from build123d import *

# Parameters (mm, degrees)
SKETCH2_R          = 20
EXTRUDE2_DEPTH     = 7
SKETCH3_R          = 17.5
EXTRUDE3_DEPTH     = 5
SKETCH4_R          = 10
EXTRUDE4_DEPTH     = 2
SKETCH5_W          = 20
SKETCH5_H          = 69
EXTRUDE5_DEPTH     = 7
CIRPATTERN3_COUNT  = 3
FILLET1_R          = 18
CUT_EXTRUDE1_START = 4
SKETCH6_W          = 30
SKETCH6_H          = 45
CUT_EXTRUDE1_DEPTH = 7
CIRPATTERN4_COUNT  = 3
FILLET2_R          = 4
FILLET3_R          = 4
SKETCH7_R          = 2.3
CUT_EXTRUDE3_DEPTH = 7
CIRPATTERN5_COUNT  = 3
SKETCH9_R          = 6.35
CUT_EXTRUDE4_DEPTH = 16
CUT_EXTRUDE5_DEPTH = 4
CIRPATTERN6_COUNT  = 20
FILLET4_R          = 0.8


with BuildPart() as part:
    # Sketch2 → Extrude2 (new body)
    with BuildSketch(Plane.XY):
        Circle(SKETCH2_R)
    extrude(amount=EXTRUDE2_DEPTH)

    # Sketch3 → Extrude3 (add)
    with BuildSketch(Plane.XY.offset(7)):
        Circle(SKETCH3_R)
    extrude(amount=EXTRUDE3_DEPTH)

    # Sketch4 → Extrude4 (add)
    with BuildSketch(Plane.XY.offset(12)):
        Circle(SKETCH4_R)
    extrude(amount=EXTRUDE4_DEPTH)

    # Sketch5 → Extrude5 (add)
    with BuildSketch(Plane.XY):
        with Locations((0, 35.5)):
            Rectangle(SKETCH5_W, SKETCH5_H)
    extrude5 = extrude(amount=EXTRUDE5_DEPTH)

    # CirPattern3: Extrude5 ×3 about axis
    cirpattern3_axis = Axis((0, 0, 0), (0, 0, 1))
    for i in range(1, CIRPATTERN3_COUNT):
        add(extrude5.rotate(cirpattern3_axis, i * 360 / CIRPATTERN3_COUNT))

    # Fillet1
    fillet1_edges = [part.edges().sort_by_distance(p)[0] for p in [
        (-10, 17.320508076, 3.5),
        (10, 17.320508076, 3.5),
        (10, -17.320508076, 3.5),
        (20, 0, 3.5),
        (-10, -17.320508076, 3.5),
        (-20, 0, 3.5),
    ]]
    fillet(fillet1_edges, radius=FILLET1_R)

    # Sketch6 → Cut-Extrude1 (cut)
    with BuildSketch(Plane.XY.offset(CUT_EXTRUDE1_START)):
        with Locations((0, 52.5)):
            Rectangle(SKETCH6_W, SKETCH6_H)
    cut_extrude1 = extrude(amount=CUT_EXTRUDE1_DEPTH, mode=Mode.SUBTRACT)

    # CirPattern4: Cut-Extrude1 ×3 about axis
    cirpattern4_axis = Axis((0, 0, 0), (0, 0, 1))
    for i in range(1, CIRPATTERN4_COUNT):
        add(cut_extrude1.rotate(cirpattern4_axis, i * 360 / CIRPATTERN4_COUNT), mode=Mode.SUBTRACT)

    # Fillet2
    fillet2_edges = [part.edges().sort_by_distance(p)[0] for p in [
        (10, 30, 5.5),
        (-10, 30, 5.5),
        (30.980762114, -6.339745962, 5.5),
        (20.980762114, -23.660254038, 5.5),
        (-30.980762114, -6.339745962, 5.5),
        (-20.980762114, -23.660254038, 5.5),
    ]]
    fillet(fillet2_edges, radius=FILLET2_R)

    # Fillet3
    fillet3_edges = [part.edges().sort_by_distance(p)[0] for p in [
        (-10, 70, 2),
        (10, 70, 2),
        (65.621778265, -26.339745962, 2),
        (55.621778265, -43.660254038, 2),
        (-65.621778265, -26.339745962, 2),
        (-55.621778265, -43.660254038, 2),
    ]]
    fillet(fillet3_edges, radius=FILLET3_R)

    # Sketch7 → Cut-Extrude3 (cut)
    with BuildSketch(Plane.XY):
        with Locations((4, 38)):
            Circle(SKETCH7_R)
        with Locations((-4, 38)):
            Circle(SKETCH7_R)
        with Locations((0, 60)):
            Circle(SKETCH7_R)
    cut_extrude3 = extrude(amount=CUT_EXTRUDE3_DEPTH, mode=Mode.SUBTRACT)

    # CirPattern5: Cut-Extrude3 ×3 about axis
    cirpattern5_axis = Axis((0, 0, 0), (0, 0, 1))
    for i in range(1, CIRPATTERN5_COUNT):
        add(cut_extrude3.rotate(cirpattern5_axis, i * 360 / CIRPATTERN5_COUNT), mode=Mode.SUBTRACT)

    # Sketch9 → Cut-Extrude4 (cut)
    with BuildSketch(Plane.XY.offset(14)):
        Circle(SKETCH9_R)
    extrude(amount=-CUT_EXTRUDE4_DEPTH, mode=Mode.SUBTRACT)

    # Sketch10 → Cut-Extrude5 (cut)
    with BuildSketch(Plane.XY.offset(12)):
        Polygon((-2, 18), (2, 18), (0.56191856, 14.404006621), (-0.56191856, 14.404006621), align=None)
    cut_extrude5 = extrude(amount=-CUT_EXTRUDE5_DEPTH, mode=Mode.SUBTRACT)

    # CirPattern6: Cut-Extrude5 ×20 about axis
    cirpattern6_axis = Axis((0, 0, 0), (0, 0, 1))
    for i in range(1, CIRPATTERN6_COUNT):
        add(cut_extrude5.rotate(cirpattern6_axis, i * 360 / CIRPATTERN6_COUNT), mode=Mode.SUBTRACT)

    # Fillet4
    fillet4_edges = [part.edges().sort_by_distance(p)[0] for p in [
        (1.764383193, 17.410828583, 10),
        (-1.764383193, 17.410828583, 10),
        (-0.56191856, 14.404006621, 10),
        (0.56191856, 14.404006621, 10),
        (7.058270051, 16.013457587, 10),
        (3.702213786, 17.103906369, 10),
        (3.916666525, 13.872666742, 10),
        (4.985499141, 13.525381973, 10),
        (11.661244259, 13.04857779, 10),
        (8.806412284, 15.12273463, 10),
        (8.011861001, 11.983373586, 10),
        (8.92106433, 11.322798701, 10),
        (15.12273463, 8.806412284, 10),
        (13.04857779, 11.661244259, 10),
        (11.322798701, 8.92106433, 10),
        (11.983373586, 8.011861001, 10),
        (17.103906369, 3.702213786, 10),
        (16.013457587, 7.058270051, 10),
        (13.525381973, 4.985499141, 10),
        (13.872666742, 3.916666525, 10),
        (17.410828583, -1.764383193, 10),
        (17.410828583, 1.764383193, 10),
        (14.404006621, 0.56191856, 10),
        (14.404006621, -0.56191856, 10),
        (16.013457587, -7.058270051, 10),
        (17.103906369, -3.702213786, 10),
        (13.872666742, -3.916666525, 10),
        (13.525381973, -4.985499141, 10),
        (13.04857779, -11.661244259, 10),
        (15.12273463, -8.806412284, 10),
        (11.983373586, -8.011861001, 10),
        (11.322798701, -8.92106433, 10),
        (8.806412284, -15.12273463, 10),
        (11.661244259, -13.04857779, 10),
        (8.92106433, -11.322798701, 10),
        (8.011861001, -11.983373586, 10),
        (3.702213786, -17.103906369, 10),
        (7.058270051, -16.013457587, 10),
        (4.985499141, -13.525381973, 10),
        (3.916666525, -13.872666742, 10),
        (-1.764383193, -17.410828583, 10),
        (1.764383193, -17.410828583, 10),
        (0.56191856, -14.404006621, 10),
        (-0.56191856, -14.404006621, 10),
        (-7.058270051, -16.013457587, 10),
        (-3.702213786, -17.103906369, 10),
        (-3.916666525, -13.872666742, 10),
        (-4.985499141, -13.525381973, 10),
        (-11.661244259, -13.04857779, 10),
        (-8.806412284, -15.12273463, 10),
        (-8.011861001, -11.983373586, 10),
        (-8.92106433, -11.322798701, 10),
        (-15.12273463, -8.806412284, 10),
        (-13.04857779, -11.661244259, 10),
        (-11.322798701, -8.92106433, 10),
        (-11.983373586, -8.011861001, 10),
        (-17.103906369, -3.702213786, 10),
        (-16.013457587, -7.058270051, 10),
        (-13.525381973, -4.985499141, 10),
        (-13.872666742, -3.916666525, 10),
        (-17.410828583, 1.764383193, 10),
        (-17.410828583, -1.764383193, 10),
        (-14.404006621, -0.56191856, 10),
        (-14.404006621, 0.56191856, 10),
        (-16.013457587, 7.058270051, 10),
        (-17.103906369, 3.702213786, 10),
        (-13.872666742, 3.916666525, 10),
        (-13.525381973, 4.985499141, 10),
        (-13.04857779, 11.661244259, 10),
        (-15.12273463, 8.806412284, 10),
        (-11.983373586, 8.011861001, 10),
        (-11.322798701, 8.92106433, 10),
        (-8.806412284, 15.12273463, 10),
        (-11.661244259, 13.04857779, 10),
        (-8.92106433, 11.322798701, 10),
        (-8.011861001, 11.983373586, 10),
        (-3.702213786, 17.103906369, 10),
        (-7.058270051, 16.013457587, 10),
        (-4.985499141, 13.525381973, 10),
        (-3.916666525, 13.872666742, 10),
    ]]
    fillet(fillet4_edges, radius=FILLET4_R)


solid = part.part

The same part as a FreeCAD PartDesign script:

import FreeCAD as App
import Part
import Sketcher
Q = App.Units.Quantity


def edges_at(feature, points):
    """Names of the edges that pass closest to the given points."""
    edges = feature.Shape.Edges
    near = lambda p: min(range(len(edges)), key=lambda i: edges[i].distToShape(Part.Vertex(*p))[0])
    return sorted({f"Edge{near(p) + 1}" for p in points})

doc = App.newDocument("Part")
body = doc.addObject("PartDesign::Body", "Body")

sketch1 = body.newObject("Sketcher::SketchObject", "Sketch")
sketch1.AttachmentSupport = (doc.getObject("XY_Plane"), [""])
sketch1.MapMode = "FlatFace"
sketch1.addGeometry(Part.Circle(App.Vector(0, 0, 0), App.Vector(0, 0, 1), 20), False)
sketch1.addConstraint(Sketcher.Constraint("Coincident", 0, 3, -1, 1))
sketch1.addConstraint(Sketcher.Constraint("Diameter", 0, Q("40 mm")))
pad1 = body.newObject("PartDesign::Pad", "Pad")
pad1.Profile = sketch1
pad1.Length = 7

sketch2 = body.newObject("Sketcher::SketchObject", "Sketch001")
sketch2.AttachmentSupport = (doc.getObject("XY_Plane"), [""])
sketch2.MapMode = "FlatFace"
sketch2.AttachmentOffset = App.Placement(App.Vector(0, 0, 7), App.Rotation())
sketch2.addGeometry(Part.Circle(App.Vector(0, 0, 0), App.Vector(0, 0, 1), 18), False)
sketch2.addConstraint(Sketcher.Constraint("Coincident", 0, 3, -1, 1))
sketch2.addConstraint(Sketcher.Constraint("Diameter", 0, Q("35 mm")))
pad2 = body.newObject("PartDesign::Pad", "Pad001")
pad2.Profile = sketch2
pad2.Length = 5

sketch3 = body.newObject("Sketcher::SketchObject", "Sketch002")
sketch3.AttachmentSupport = (doc.getObject("XY_Plane"), [""])
sketch3.MapMode = "FlatFace"
sketch3.AttachmentOffset = App.Placement(App.Vector(0, 0, 12), App.Rotation())
sketch3.addGeometry(Part.Circle(App.Vector(0, 0, 0), App.Vector(0, 0, 1), 10), False)
sketch3.addConstraint(Sketcher.Constraint("Coincident", 0, 3, -1, 1))
sketch3.addConstraint(Sketcher.Constraint("Diameter", 0, Q("20 mm")))
pad3 = body.newObject("PartDesign::Pad", "Pad002")
pad3.Profile = sketch3
pad3.Length = 2

sketch4 = body.newObject("Sketcher::SketchObject", "Sketch003")
sketch4.AttachmentSupport = (doc.getObject("XY_Plane"), [""])
sketch4.MapMode = "FlatFace"
sketch4.addGeometry(Part.LineSegment(App.Vector(-10, 70, 0), App.Vector(-10, 1, 0)), False)
sketch4.addGeometry(Part.LineSegment(App.Vector(-10, 1, 0), App.Vector(10, 1, 0)), False)
sketch4.addGeometry(Part.LineSegment(App.Vector(10, 1, 0), App.Vector(10, 70, 0)), False)
sketch4.addGeometry(Part.LineSegment(App.Vector(10, 70, 0), App.Vector(-10, 70, 0)), False)
sketch4.addConstraint(Sketcher.Constraint("Coincident", 0, 2, 1, 1))
sketch4.addConstraint(Sketcher.Constraint("Coincident", 1, 2, 2, 1))
sketch4.addConstraint(Sketcher.Constraint("Coincident", 2, 2, 3, 1))
sketch4.addConstraint(Sketcher.Constraint("Coincident", 3, 2, 0, 1))
sketch4.addConstraint(Sketcher.Constraint("Vertical", 0))
sketch4.addConstraint(Sketcher.Constraint("Horizontal", 1))
sketch4.addConstraint(Sketcher.Constraint("Vertical", 2))
sketch4.addConstraint(Sketcher.Constraint("Horizontal", 3))
sketch4.addConstraint(Sketcher.Constraint("DistanceX", 1, 1, 1, 2, Q("20 mm")))
sketch4.addConstraint(Sketcher.Constraint("DistanceY", 0, 2, 0, 1, Q("69 mm")))
sketch4.addConstraint(Sketcher.Constraint("DistanceX", 0, 2, -1, 1, Q("10 mm")))
sketch4.addConstraint(Sketcher.Constraint("DistanceY", -1, 1, 0, 2, Q("1 mm")))
pad4 = body.newObject("PartDesign::Pad", "Pad003")
pad4.Profile = sketch4
pad4.Length = 7
doc.recompute()

polarpattern = body.newObject("PartDesign::PolarPattern", "PolarPattern")
polarpattern.Originals = [pad4]
polarpattern.Axis = (doc.getObject("Z_Axis"), [""])
polarpattern.Angle = 360
polarpattern.Occurrences = 3
body.Tip = polarpattern
doc.recompute()

fillet = body.newObject("PartDesign::Fillet", "Fillet")
fillet.Base = (polarpattern, edges_at(polarpattern, [
    (-10, 17.321, 3.5),
    (10, 17.321, 3.5),
    (10, -17.321, 3.5),
    (20, 0, 3.5),
    (-10, -17.321, 3.5),
    (-20, 0, 3.5),
]))
fillet.Radius = 18

sketch5 = body.newObject("Sketcher::SketchObject", "Sketch004")
sketch5.AttachmentSupport = (doc.getObject("XY_Plane"), [""])
sketch5.MapMode = "FlatFace"
sketch5.AttachmentOffset = App.Placement(App.Vector(0, 0, 4), App.Rotation())
sketch5.addGeometry(Part.LineSegment(App.Vector(-15, 75, 0), App.Vector(-15, 30, 0)), False)
sketch5.addGeometry(Part.LineSegment(App.Vector(-15, 30, 0), App.Vector(15, 30, 0)), False)
sketch5.addGeometry(Part.LineSegment(App.Vector(15, 30, 0), App.Vector(15, 75, 0)), False)
sketch5.addGeometry(Part.LineSegment(App.Vector(15, 75, 0), App.Vector(-15, 75, 0)), False)
sketch5.addConstraint(Sketcher.Constraint("Coincident", 0, 2, 1, 1))
sketch5.addConstraint(Sketcher.Constraint("Coincident", 1, 2, 2, 1))
sketch5.addConstraint(Sketcher.Constraint("Coincident", 2, 2, 3, 1))
sketch5.addConstraint(Sketcher.Constraint("Coincident", 3, 2, 0, 1))
sketch5.addConstraint(Sketcher.Constraint("Vertical", 0))
sketch5.addConstraint(Sketcher.Constraint("Horizontal", 1))
sketch5.addConstraint(Sketcher.Constraint("Vertical", 2))
sketch5.addConstraint(Sketcher.Constraint("Horizontal", 3))
sketch5.addConstraint(Sketcher.Constraint("DistanceX", 1, 1, 1, 2, Q("30 mm")))
sketch5.addConstraint(Sketcher.Constraint("DistanceY", 0, 2, 0, 1, Q("45 mm")))
sketch5.addConstraint(Sketcher.Constraint("DistanceX", 0, 2, -1, 1, Q("15 mm")))
sketch5.addConstraint(Sketcher.Constraint("DistanceY", -1, 1, 0, 2, Q("30 mm")))
pocket1 = body.newObject("PartDesign::Pocket", "Pocket")
pocket1.Profile = sketch5
pocket1.Length = 7
pocket1.Reversed = True
doc.recompute()

polarpattern2 = body.newObject("PartDesign::PolarPattern", "PolarPattern001")
polarpattern2.Originals = [pocket1]
polarpattern2.Axis = (doc.getObject("Z_Axis"), [""])
polarpattern2.Angle = 360
polarpattern2.Occurrences = 3
body.Tip = polarpattern2
doc.recompute()

fillet2 = body.newObject("PartDesign::Fillet", "Fillet001")
fillet2.Base = (polarpattern2, edges_at(polarpattern2, [
    (10, 30, 5.5),
    (-10, 30, 5.5),
    (30.981, -6.34, 5.5),
    (20.981, -23.66, 5.5),
    (-30.981, -6.34, 5.5),
    (-20.981, -23.66, 5.5),
]))
fillet2.Radius = 4
doc.recompute()

fillet3 = body.newObject("PartDesign::Fillet", "Fillet002")
fillet3.Base = (fillet2, edges_at(fillet2, [
    (-10, 70, 2),
    (10, 70, 2),
    (65.622, -26.34, 2),
    (55.622, -43.66, 2),
    (-65.622, -26.34, 2),
    (-55.622, -43.66, 2),
]))
fillet3.Radius = 4

sketch6 = body.newObject("Sketcher::SketchObject", "Sketch005")
sketch6.AttachmentSupport = (doc.getObject("XY_Plane"), [""])
sketch6.MapMode = "FlatFace"
sketch6.addGeometry(Part.Circle(App.Vector(4, 38, 0), App.Vector(0, 0, 1), 2.3), False)
sketch6.addGeometry(Part.Circle(App.Vector(-4, 38, 0), App.Vector(0, 0, 1), 2.3), False)
sketch6.addGeometry(Part.Circle(App.Vector(0, 60, 0), App.Vector(0, 0, 1), 2.3), False)
sketch6.addConstraint(Sketcher.Constraint("Equal", 0, 1))
sketch6.addConstraint(Sketcher.Constraint("Equal", 1, 2))
sketch6.addConstraint(Sketcher.Constraint("Symmetric", 0, 3, 1, 3, -2))
sketch6.addConstraint(Sketcher.Constraint("PointOnObject", 2, 3, -2))
sketch6.addConstraint(Sketcher.Constraint("Diameter", 0, Q("4.6 mm")))
sketch6.addConstraint(Sketcher.Constraint("DistanceX", -1, 1, 0, 3, Q("4 mm")))
sketch6.addConstraint(Sketcher.Constraint("DistanceY", -1, 1, 0, 3, Q("38 mm")))
sketch6.addConstraint(Sketcher.Constraint("DistanceY", -1, 1, 2, 3, Q("60 mm")))
pocket2 = body.newObject("PartDesign::Pocket", "Pocket001")
pocket2.Profile = sketch6
pocket2.Length = 7
pocket2.Reversed = True
doc.recompute()

polarpattern3 = body.newObject("PartDesign::PolarPattern", "PolarPattern002")
polarpattern3.Originals = [pocket2]
polarpattern3.Axis = (doc.getObject("Z_Axis"), [""])
polarpattern3.Angle = 360
polarpattern3.Occurrences = 3
body.Tip = polarpattern3

sketch7 = body.newObject("Sketcher::SketchObject", "Sketch006")
sketch7.AttachmentSupport = (doc.getObject("XY_Plane"), [""])
sketch7.MapMode = "FlatFace"
sketch7.AttachmentOffset = App.Placement(App.Vector(0, 0, 14), App.Rotation())
sketch7.addGeometry(Part.Circle(App.Vector(0, 0, 0), App.Vector(0, 0, 1), 6), False)
sketch7.addConstraint(Sketcher.Constraint("Coincident", 0, 3, -1, 1))
sketch7.addConstraint(Sketcher.Constraint("Diameter", 0, Q("12.7 mm")))
pocket3 = body.newObject("PartDesign::Pocket", "Pocket002")
pocket3.Profile = sketch7
pocket3.Length = 16

sketch8 = body.newObject("Sketcher::SketchObject", "Sketch007")
sketch8.AttachmentSupport = (doc.getObject("XY_Plane"), [""])
sketch8.MapMode = "FlatFace"
sketch8.AttachmentOffset = App.Placement(App.Vector(0, 0, 12), App.Rotation())
sketch8.addGeometry(Part.LineSegment(App.Vector(2, 18, 0), App.Vector(-2, 18, 0)), False)
sketch8.addGeometry(Part.LineSegment(App.Vector(-2, 18, 0), App.Vector(-0.6, 14.4, 0)), False)
sketch8.addGeometry(Part.LineSegment(App.Vector(-0.6, 14.4, 0), App.Vector(0.6, 14.4, 0)), False)
sketch8.addGeometry(Part.LineSegment(App.Vector(0.6, 14.4, 0), App.Vector(2, 18, 0)), False)
sketch8.addConstraint(Sketcher.Constraint("Coincident", 0, 2, 1, 1))
sketch8.addConstraint(Sketcher.Constraint("Coincident", 1, 2, 2, 1))
sketch8.addConstraint(Sketcher.Constraint("Coincident", 2, 2, 3, 1))
sketch8.addConstraint(Sketcher.Constraint("Coincident", 3, 2, 0, 1))
sketch8.addConstraint(Sketcher.Constraint("Horizontal", 0))
sketch8.addConstraint(Sketcher.Constraint("Horizontal", 2))
sketch8.addConstraint(Sketcher.Constraint("Equal", 1, 3))
sketch8.addConstraint(Sketcher.Constraint("DistanceX", 0, 2, 0, 1, Q("4 mm")))
sketch8.addConstraint(Sketcher.Constraint("DistanceX", 0, 2, -1, 1, Q("2 mm")))
sketch8.addConstraint(Sketcher.Constraint("DistanceY", -1, 1, 0, 2, Q("18 mm")))
sketch8.addConstraint(Sketcher.Constraint("DistanceX", 2, 1, 2, 2, Q("1.123837 mm")))
sketch8.addConstraint(Sketcher.Constraint("Distance", 1, Q("3.872886 mm")))
pocket4 = body.newObject("PartDesign::Pocket", "Pocket003")
pocket4.Profile = sketch8
pocket4.Length = 4
doc.recompute()

polarpattern4 = body.newObject("PartDesign::PolarPattern", "PolarPattern003")
polarpattern4.Originals = [pocket4]
polarpattern4.Axis = (doc.getObject("Z_Axis"), [""])
polarpattern4.Angle = 360
polarpattern4.Occurrences = 20
body.Tip = polarpattern4
doc.recompute()

fillet4 = body.newObject("PartDesign::Fillet", "Fillet003")
fillet4.Base = (polarpattern4, edges_at(polarpattern4, [
    (1.764, 17.411, 10),
    (-1.764, 17.411, 10),
    (-0.562, 14.404, 10),
    (0.562, 14.404, 10),
    (7.058, 16.013, 10),
    (3.702, 17.104, 10),
    (3.917, 13.873, 10),
    (4.985, 13.525, 10),
    (11.661, 13.049, 10),
    (8.806, 15.123, 10),
    (8.012, 11.983, 10),
    (8.921, 11.323, 10),
    (15.123, 8.806, 10),
    (13.049, 11.661, 10),
    (11.323, 8.921, 10),
    (11.983, 8.012, 10),
    (17.104, 3.702, 10),
    (16.013, 7.058, 10),
    (13.525, 4.985, 10),
    (13.873, 3.917, 10),
    (17.411, -1.764, 10),
    (17.411, 1.764, 10),
    (14.404, 0.562, 10),
    (14.404, -0.562, 10),
    (16.013, -7.058, 10),
    (17.104, -3.702, 10),
    (13.873, -3.917, 10),
    (13.525, -4.985, 10),
    (13.049, -11.661, 10),
    (15.123, -8.806, 10),
    (11.983, -8.012, 10),
    (11.323, -8.921, 10),
    (8.806, -15.123, 10),
    (11.661, -13.049, 10),
    (8.921, -11.323, 10),
    (8.012, -11.983, 10),
    (3.702, -17.104, 10),
    (7.058, -16.013, 10),
    (4.985, -13.525, 10),
    (3.917, -13.873, 10),
    (-1.764, -17.411, 10),
    (1.764, -17.411, 10),
    (0.562, -14.404, 10),
    (-0.562, -14.404, 10),
    (-7.058, -16.013, 10),
    (-3.702, -17.104, 10),
    (-3.917, -13.873, 10),
    (-4.985, -13.525, 10),
    (-11.661, -13.049, 10),
    (-8.806, -15.123, 10),
    (-8.012, -11.983, 10),
    (-8.921, -11.323, 10),
    (-15.123, -8.806, 10),
    (-13.049, -11.661, 10),
    (-11.323, -8.921, 10),
    (-11.983, -8.012, 10),
    (-17.104, -3.702, 10),
    (-16.013, -7.058, 10),
    (-13.525, -4.985, 10),
    (-13.873, -3.917, 10),
    (-17.411, 1.764, 10),
    (-17.411, -1.764, 10),
    (-14.404, -0.562, 10),
    (-14.404, 0.562, 10),
    (-16.013, 7.058, 10),
    (-17.104, 3.702, 10),
    (-13.873, 3.917, 10),
    (-13.525, 4.985, 10),
    (-13.049, 11.661, 10),
    (-15.123, 8.806, 10),
    (-11.983, 8.012, 10),
    (-11.323, 8.921, 10),
    (-8.806, 15.123, 10),
    (-11.661, 13.049, 10),
    (-8.921, 11.323, 10),
    (-8.012, 11.983, 10),
    (-3.702, 17.104, 10),
    (-7.058, 16.013, 10),
    (-4.985, 13.525, 10),
    (-3.917, 13.873, 10),
]))
fillet4.Radius = 0.8

doc.recompute()
